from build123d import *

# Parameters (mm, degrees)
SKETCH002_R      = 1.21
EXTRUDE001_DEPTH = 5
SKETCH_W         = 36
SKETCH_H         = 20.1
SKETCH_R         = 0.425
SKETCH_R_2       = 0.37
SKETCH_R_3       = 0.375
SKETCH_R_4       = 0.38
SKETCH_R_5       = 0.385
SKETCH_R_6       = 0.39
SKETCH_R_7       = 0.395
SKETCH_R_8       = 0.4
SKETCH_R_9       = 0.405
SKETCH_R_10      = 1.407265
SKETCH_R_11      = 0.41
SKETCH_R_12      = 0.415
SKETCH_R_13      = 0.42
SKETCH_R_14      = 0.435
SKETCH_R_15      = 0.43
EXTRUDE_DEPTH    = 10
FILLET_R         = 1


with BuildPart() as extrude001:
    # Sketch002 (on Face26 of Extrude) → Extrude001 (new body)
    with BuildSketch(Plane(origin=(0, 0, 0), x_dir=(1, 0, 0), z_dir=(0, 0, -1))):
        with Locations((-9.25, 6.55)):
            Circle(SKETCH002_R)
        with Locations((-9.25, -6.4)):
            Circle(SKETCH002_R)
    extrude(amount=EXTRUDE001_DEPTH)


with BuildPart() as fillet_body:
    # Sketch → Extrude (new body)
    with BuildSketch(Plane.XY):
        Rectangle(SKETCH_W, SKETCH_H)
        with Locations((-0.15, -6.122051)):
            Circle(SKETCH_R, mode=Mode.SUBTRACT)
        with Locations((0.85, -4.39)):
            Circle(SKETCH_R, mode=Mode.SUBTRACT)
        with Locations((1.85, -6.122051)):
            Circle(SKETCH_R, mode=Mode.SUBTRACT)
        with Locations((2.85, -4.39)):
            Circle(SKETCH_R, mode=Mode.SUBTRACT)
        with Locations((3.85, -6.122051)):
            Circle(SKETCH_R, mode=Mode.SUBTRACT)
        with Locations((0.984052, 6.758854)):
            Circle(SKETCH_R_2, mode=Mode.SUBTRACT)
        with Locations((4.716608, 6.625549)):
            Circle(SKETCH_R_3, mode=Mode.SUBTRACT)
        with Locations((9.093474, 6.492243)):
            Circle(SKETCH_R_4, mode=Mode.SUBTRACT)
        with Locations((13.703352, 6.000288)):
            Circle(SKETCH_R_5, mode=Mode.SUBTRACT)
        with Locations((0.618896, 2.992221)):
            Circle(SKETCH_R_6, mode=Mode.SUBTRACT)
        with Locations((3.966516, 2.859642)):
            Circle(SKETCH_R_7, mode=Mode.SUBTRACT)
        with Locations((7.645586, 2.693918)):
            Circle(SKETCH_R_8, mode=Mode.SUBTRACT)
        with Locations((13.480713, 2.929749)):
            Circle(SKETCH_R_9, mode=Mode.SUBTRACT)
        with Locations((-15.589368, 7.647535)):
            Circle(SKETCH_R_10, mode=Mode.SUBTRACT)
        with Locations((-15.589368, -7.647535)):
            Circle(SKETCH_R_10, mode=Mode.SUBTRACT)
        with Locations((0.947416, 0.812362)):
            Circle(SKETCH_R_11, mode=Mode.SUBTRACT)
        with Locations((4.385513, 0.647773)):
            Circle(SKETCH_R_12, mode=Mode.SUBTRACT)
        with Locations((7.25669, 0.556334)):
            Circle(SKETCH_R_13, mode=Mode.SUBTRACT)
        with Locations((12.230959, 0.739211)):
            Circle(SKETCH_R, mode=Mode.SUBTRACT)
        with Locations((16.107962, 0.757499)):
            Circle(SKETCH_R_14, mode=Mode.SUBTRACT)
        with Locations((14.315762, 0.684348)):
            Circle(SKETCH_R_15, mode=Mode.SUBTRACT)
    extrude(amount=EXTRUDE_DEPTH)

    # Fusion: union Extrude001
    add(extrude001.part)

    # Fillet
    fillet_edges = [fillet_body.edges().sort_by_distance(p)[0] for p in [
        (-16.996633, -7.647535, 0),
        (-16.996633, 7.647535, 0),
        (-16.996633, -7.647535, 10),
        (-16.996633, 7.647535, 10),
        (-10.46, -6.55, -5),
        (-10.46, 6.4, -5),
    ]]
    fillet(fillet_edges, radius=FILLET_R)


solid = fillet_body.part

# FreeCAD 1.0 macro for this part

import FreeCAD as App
import Part
import Sketcher
from FreeCAD import Vector


def edges_at(feature, points):
    """Names of the edges that pass closest to the given points."""
    edges = feature.Shape.Edges
    near = lambda p: min(range(len(edges)), key=lambda i: edges[i].distToShape(Part.Vertex(*p))[0])
    return sorted({f"Edge{near(p) + 1}" for p in points})


def add_polygon(sketch, points):
    """Adds a closed chain of lines whose ends are joined by coincident constraints."""
    first, n = sketch.GeometryCount, len(points)
    for a, b in zip(points, points[1:] + points[:1]):
        sketch.addGeometry(Part.LineSegment(App.Vector(*a, 0), App.Vector(*b, 0)), False)
    for i in range(n):
        sketch.addConstraint(Sketcher.Constraint("Coincident", first + i, 2, first + (i + 1) % n, 1))

doc = App.newDocument("Part")
params = doc.addObject("Spreadsheet::Sheet", "Params")
for row, (alias, value) in enumerate([
    ("sketch1_diameter", "2.42 mm"),
    ("pad1_length", "5 mm"),
    ("sketch2_diameter", "0.8 mm"),
    ("sketch2_diameter2", "0.85 mm"),
    ("sketch2_diameter3", "0.82 mm"),
    ("sketch2_diameter4", "0.83 mm"),
    ("sketch2_diameter5", "0.84 mm"),
    ("pad2_length", "10 mm"),
    ("fillet_radius", "1 mm"),
], start=1):
    params.set(f"A{row}", alias)
    params.set(f"B{row}", "=" + value)
    params.setAlias(f"B{row}", alias)

body = doc.addObject("PartDesign::Body", "Body")
body.AllowCompound = True

# Sketch on XY plane
sketch1 = doc.addObject("Sketcher::SketchObject", "Sketch")
body.addObject(sketch1)
sketch1.AttachmentSupport = (doc.XY_Plane, [""])
sketch1.MapMode = "FlatFace"
sketch1.addGeometry(Part.Circle(Vector(-9.2, -6.5, 0), Vector(0, 0, 1), 1.2), False)
sketch1.addGeometry(Part.Circle(Vector(-9.2, 6.4, 0), Vector(0, 0, 1), 1.2), False)
sketch1.addConstraint(Sketcher.Constraint("Equal", 0, 1))
sketch1.addConstraint(Sketcher.Constraint("Vertical", 0, 3, 1, 3))
sketch1.addConstraint(Sketcher.Constraint("Diameter", 0, 2.42))
sketch1.addConstraint(Sketcher.Constraint("DistanceY", -1, 1, 1, 3, 6.4))
sketch1.addConstraint(Sketcher.Constraint("DistanceX", 0, 3, -1, 1, 9.25))
sketch1.addConstraint(Sketcher.Constraint("DistanceY", 0, 3, -1, 1, 6.55))
sketch1.setExpression("Constraints[2]", "Params.sketch1_diameter")
pad1 = doc.addObject("PartDesign::Pad", "Pad")
body.addObject(pad1)
pad1.Profile = sketch1
pad1.setExpression("Length", "Params.pad1_length")
pad1.Reversed = True
body2 = doc.addObject("PartDesign::Body", "Body001")

# Sketch on XY plane
sketch2 = doc.addObject("Sketcher::SketchObject", "Sketch001")
body2.addObject(sketch2)
sketch2.AttachmentSupport = (doc.getObject("XY_Plane001"), [""])
sketch2.MapMode = "FlatFace"
add_polygon(sketch2, [(-18, 10.05), (-18, -10.05), (18, -10.05), (18, 10.05)])  # lines 0-3
sketch2.addGeometry(Part.Circle(Vector(-15.59, -7.65, 0), Vector(0, 0, 1), 1.41), False)  # 4
sketch2.addGeometry(Part.Circle(Vector(-0.15, -6.12, 0), Vector(0, 0, 1), 0.42), False)  # 5
sketch2.addGeometry(Part.Circle(Vector(1.85, -6.12, 0), Vector(0, 0, 1), 0.42), False)  # 6
sketch2.addGeometry(Part.Circle(Vector(3.85, -6.12, 0), Vector(0, 0, 1), 0.42), False)  # 7
sketch2.addGeometry(Part.Circle(Vector(0.85, -4.39, 0), Vector(0, 0, 1), 0.42), False)  # 8
sketch2.addGeometry(Part.Circle(Vector(2.85, -4.39, 0), Vector(0, 0, 1), 0.42), False)  # 9
sketch2.addGeometry(Part.Circle(Vector(-15.59, 7.65, 0), Vector(0, 0, 1), 1.41), False)  # 10
sketch2.addGeometry(Part.Circle(Vector(0.95, 0.81, 0), Vector(0, 0, 1), 0.41), False)  # 11
sketch2.addGeometry(Part.Circle(Vector(4.39, 0.65, 0), Vector(0, 0, 1), 0.41), False)  # 12
sketch2.addGeometry(Part.Circle(Vector(7.26, 0.56, 0), Vector(0, 0, 1), 0.42), False)  # 13
sketch2.addGeometry(Part.Circle(Vector(0.62, 2.99, 0), Vector(0, 0, 1), 0.39), False)  # 14
sketch2.addGeometry(Part.Circle(Vector(3.97, 2.86, 0), Vector(0, 0, 1), 0.4), False)  # 15
sketch2.addGeometry(Part.Circle(Vector(7.65, 2.69, 0), Vector(0, 0, 1), 0.4), False)  # 16
sketch2.addGeometry(Part.Circle(Vector(12.23, 0.74, 0), Vector(0, 0, 1), 0.42), False)  # 17
sketch2.addGeometry(Part.Circle(Vector(14.32, 0.68, 0), Vector(0, 0, 1), 0.43), False)  # 18
sketch2.addGeometry(Part.Circle(Vector(16.11, 0.76, 0), Vector(0, 0, 1), 0.43), False)  # 19
sketch2.addGeometry(Part.Circle(Vector(13.48, 2.93, 0), Vector(0, 0, 1), 0.41), False)  # 20
sketch2.addGeometry(Part.Circle(Vector(0.98, 6.76, 0), Vector(0, 0, 1), 0.37), False)  # 21
sketch2.addGeometry(Part.Circle(Vector(4.72, 6.63, 0), Vector(0, 0, 1), 0.38), False)  # 22
sketch2.addGeometry(Part.Circle(Vector(9.09, 6.49, 0), Vector(0, 0, 1), 0.38), False)  # 23
sketch2.addGeometry(Part.Circle(Vector(13.7, 6, 0), Vector(0, 0, 1), 0.39), False)  # 24
sketch2.addConstraint(Sketcher.Constraint("Vertical", 0))
sketch2.addConstraint(Sketcher.Constraint("Horizontal", 1))
sketch2.addConstraint(Sketcher.Constraint("Vertical", 2))
sketch2.addConstraint(Sketcher.Constraint("Horizontal", 3))
sketch2.addConstraint(Sketcher.Constraint("Equal", 5, 6))
sketch2.addConstraint(Sketcher.Constraint("Equal", 6, 7))
sketch2.addConstraint(Sketcher.Constraint("Equal", 7, 8))
sketch2.addConstraint(Sketcher.Constraint("Equal", 8, 9))
sketch2.addConstraint(Sketcher.Constraint("Equal", 4, 10))
sketch2.addConstraint(Sketcher.Constraint("Equal", 9, 17))
sketch2.addConstraint(Sketcher.Constraint("Symmetric", 0, 2, 2, 2, -1, 1))
sketch2.addConstraint(Sketcher.Constraint("Symmetric", 4, 3, 10, 3, -1))
sketch2.addConstraint(Sketcher.Constraint("Horizontal", 5, 3, 6, 3))
sketch2.addConstraint(Sketcher.Constraint("Horizontal", 6, 3, 7, 3))
sketch2.addConstraint(Sketcher.Constraint("Horizontal", 8, 3, 9, 3))
sketch2.addConstraint(Sketcher.Constraint("Diameter", 16, 0.8))
sketch2.addConstraint(Sketcher.Constraint("Diameter", 5, 0.85))
sketch2.addConstraint(Sketcher.Constraint("Diameter", 11, 0.82))
sketch2.addConstraint(Sketcher.Constraint("Diameter", 12, 0.83))
sketch2.addConstraint(Sketcher.Constraint("Diameter", 13, 0.84))
sketch2.addConstraint(Sketcher.Constraint("Diameter", 14, 0.78))
sketch2.addConstraint(Sketcher.Constraint("Diameter", 15, 0.79))
sketch2.addConstraint(Sketcher.Constraint("Diameter", 18, 0.86))
sketch2.addConstraint(Sketcher.Constraint("Diameter", 19, 0.87))
sketch2.addConstraint(Sketcher.Constraint("Diameter", 20, 0.81))
sketch2.addConstraint(Sketcher.Constraint("Diameter", 21, 0.74))
sketch2.addConstraint(Sketcher.Constraint("Diameter", 22, 0.75))
sketch2.addConstraint(Sketcher.Constraint("Diameter", 23, 0.76))
sketch2.addConstraint(Sketcher.Constraint("Diameter", 24, 0.77))
sketch2.addConstraint(Sketcher.Constraint("DistanceX", 1, 1, 1, 2, 36.0))
sketch2.addConstraint(Sketcher.Constraint("DistanceY", 0, 2, 0, 1, 20.1))
sketch2.addConstraint(Sketcher.Constraint("DistanceX", 5, 3, 6, 3, 2.0))
sketch2.addConstraint(Sketcher.Constraint("DistanceX", 6, 3, 7, 3, 2.0))
sketch2.addConstraint(Sketcher.Constraint("DistanceX", 5, 3, 8, 3, 1.0))
sketch2.addConstraint(Sketcher.Constraint("DistanceX", 8, 3, 9, 3, 2.0))
sketch2.addConstraint(Sketcher.Constraint("Diameter", 4, 2.81453))
sketch2.addConstraint(Sketcher.Constraint("DistanceX", 5, 3, -1, 1, 0.15))
sketch2.addConstraint(Sketcher.Constraint("DistanceY", 8, 3, -1, 1, 4.39))
sketch2.addConstraint(Sketcher.Constraint("DistanceY", -1, 1, 19, 3, 0.757499))
sketch2.addConstraint(Sketcher.Constraint("DistanceX", 11, 3, 15, 3, 3.0191))
sketch2.addConstraint(Sketcher.Constraint("DistanceX", 18, 3, 19, 3, 1.7922))
sketch2.addConstraint(Sketcher.Constraint("DistanceY", 18, 3, 20, 3, 2.245401))
sketch2.addConstraint(Sketcher.Constraint("DistanceY", 15, 3, 23, 3, 3.632601))
sketch2.addConstraint(Sketcher.Constraint("DistanceY", 5, 3, -1, 1, 6.122051))
sketch2.addConstraint(Sketcher.Constraint("DistanceX", -1, 1, 13, 3, 7.25669))
sketch2.addConstraint(Sketcher.Constraint("DistanceY", -1, 1, 14, 3, 2.992221))
sketch2.addConstraint(Sketcher.Constraint("DistanceY", -1, 1, 15, 3, 2.859642))
sketch2.addConstraint(Sketcher.Constraint("DistanceY", -1, 1, 16, 3, 2.693918))
sketch2.addConstraint(Sketcher.Constraint("DistanceX", -1, 1, 17, 3, 12.230959))
sketch2.addConstraint(Sketcher.Constraint("DistanceY", -1, 1, 17, 3, 0.739211))
sketch2.addConstraint(Sketcher.Constraint("DistanceY", -1, 1, 20, 3, 2.929749))
sketch2.addConstraint(Sketcher.Constraint("DistanceY", -1, 1, 22, 3, 6.625549))
sketch2.addConstraint(Sketcher.Constraint("DistanceY", -1, 1, 24, 3, 6.000288))
sketch2.addConstraint(Sketcher.Constraint("DistanceX", 4, 3, 6, 3, 17.439368))
sketch2.addConstraint(Sketcher.Constraint("DistanceY", 4, 3, 10, 3, 15.29507))
sketch2.addConstraint(Sketcher.Constraint("DistanceY", 12, 3, 11, 3, 0.164589))
sketch2.addConstraint(Sketcher.Constraint("DistanceY", 13, 3, 12, 3, 0.091439))
sketch2.addConstraint(Sketcher.Constraint("DistanceX", 14, 3, 11, 3, 0.32852))
sketch2.addConstraint(Sketcher.Constraint("DistanceY", 11, 3, 14, 3, 2.179859))
sketch2.addConstraint(Sketcher.Constraint("DistanceX", 15, 3, 16, 3, 3.67907))
sketch2.addConstraint(Sketcher.Constraint("DistanceX", 13, 3, 18, 3, 7.059072))
sketch2.addConstraint(Sketcher.Constraint("DistanceX", 12, 3, 18, 3, 9.930249))
sketch2.addConstraint(Sketcher.Constraint("DistanceX", 20, 3, 18, 3, 0.835049))
sketch2.addConstraint(Sketcher.Constraint("DistanceX", 21, 3, 12, 3, 3.401461))
sketch2.addConstraint(Sketcher.Constraint("DistanceY", 12, 3, 21, 3, 6.111081))
sketch2.addConstraint(Sketcher.Constraint("DistanceX", 15, 3, 22, 3, 0.750092))
sketch2.addConstraint(Sketcher.Constraint("DistanceX", 16, 3, 23, 3, 1.447888))
sketch2.addConstraint(Sketcher.Constraint("DistanceX", 23, 3, 20, 3, 4.387239))
sketch2.addConstraint(Sketcher.Constraint("DistanceX", 20, 3, 24, 3, 0.222639))
sketch2.setExpression("Constraints[19]", "Params.sketch2_diameter")
sketch2.setExpression("Constraints[20]", "Params.sketch2_diameter2")
sketch2.setExpression("Constraints[21]", "Params.sketch2_diameter3")
sketch2.setExpression("Constraints[22]", "Params.sketch2_diameter4")
sketch2.setExpression("Constraints[23]", "Params.sketch2_diameter5")
pad2 = doc.addObject("PartDesign::Pad", "Pad001")
body2.addObject(pad2)
pad2.Profile = sketch2
pad2.setExpression("Length", "Params.pad2_length")
doc.recompute()

boolean = doc.addObject("PartDesign::Boolean", "Boolean")
body2.addObject(boolean)
boolean.Type = "Fuse"
boolean.addObjects([body])
doc.recompute()

fillet = doc.addObject("PartDesign::Fillet", "Fillet")
body2.addObject(fillet)
fillet.Base = (boolean, edges_at(boolean, [
    (-16.997, -7.648, 0),
    (-16.997, 7.648, 0),
    (-16.997, -7.648, 10),
    (-16.997, 7.648, 10),
    (-10.46, -6.55, -5),
    (-10.46, 6.4, -5),
]))
fillet.setExpression("Radius", "Params.fillet_radius")

doc.recompute()
